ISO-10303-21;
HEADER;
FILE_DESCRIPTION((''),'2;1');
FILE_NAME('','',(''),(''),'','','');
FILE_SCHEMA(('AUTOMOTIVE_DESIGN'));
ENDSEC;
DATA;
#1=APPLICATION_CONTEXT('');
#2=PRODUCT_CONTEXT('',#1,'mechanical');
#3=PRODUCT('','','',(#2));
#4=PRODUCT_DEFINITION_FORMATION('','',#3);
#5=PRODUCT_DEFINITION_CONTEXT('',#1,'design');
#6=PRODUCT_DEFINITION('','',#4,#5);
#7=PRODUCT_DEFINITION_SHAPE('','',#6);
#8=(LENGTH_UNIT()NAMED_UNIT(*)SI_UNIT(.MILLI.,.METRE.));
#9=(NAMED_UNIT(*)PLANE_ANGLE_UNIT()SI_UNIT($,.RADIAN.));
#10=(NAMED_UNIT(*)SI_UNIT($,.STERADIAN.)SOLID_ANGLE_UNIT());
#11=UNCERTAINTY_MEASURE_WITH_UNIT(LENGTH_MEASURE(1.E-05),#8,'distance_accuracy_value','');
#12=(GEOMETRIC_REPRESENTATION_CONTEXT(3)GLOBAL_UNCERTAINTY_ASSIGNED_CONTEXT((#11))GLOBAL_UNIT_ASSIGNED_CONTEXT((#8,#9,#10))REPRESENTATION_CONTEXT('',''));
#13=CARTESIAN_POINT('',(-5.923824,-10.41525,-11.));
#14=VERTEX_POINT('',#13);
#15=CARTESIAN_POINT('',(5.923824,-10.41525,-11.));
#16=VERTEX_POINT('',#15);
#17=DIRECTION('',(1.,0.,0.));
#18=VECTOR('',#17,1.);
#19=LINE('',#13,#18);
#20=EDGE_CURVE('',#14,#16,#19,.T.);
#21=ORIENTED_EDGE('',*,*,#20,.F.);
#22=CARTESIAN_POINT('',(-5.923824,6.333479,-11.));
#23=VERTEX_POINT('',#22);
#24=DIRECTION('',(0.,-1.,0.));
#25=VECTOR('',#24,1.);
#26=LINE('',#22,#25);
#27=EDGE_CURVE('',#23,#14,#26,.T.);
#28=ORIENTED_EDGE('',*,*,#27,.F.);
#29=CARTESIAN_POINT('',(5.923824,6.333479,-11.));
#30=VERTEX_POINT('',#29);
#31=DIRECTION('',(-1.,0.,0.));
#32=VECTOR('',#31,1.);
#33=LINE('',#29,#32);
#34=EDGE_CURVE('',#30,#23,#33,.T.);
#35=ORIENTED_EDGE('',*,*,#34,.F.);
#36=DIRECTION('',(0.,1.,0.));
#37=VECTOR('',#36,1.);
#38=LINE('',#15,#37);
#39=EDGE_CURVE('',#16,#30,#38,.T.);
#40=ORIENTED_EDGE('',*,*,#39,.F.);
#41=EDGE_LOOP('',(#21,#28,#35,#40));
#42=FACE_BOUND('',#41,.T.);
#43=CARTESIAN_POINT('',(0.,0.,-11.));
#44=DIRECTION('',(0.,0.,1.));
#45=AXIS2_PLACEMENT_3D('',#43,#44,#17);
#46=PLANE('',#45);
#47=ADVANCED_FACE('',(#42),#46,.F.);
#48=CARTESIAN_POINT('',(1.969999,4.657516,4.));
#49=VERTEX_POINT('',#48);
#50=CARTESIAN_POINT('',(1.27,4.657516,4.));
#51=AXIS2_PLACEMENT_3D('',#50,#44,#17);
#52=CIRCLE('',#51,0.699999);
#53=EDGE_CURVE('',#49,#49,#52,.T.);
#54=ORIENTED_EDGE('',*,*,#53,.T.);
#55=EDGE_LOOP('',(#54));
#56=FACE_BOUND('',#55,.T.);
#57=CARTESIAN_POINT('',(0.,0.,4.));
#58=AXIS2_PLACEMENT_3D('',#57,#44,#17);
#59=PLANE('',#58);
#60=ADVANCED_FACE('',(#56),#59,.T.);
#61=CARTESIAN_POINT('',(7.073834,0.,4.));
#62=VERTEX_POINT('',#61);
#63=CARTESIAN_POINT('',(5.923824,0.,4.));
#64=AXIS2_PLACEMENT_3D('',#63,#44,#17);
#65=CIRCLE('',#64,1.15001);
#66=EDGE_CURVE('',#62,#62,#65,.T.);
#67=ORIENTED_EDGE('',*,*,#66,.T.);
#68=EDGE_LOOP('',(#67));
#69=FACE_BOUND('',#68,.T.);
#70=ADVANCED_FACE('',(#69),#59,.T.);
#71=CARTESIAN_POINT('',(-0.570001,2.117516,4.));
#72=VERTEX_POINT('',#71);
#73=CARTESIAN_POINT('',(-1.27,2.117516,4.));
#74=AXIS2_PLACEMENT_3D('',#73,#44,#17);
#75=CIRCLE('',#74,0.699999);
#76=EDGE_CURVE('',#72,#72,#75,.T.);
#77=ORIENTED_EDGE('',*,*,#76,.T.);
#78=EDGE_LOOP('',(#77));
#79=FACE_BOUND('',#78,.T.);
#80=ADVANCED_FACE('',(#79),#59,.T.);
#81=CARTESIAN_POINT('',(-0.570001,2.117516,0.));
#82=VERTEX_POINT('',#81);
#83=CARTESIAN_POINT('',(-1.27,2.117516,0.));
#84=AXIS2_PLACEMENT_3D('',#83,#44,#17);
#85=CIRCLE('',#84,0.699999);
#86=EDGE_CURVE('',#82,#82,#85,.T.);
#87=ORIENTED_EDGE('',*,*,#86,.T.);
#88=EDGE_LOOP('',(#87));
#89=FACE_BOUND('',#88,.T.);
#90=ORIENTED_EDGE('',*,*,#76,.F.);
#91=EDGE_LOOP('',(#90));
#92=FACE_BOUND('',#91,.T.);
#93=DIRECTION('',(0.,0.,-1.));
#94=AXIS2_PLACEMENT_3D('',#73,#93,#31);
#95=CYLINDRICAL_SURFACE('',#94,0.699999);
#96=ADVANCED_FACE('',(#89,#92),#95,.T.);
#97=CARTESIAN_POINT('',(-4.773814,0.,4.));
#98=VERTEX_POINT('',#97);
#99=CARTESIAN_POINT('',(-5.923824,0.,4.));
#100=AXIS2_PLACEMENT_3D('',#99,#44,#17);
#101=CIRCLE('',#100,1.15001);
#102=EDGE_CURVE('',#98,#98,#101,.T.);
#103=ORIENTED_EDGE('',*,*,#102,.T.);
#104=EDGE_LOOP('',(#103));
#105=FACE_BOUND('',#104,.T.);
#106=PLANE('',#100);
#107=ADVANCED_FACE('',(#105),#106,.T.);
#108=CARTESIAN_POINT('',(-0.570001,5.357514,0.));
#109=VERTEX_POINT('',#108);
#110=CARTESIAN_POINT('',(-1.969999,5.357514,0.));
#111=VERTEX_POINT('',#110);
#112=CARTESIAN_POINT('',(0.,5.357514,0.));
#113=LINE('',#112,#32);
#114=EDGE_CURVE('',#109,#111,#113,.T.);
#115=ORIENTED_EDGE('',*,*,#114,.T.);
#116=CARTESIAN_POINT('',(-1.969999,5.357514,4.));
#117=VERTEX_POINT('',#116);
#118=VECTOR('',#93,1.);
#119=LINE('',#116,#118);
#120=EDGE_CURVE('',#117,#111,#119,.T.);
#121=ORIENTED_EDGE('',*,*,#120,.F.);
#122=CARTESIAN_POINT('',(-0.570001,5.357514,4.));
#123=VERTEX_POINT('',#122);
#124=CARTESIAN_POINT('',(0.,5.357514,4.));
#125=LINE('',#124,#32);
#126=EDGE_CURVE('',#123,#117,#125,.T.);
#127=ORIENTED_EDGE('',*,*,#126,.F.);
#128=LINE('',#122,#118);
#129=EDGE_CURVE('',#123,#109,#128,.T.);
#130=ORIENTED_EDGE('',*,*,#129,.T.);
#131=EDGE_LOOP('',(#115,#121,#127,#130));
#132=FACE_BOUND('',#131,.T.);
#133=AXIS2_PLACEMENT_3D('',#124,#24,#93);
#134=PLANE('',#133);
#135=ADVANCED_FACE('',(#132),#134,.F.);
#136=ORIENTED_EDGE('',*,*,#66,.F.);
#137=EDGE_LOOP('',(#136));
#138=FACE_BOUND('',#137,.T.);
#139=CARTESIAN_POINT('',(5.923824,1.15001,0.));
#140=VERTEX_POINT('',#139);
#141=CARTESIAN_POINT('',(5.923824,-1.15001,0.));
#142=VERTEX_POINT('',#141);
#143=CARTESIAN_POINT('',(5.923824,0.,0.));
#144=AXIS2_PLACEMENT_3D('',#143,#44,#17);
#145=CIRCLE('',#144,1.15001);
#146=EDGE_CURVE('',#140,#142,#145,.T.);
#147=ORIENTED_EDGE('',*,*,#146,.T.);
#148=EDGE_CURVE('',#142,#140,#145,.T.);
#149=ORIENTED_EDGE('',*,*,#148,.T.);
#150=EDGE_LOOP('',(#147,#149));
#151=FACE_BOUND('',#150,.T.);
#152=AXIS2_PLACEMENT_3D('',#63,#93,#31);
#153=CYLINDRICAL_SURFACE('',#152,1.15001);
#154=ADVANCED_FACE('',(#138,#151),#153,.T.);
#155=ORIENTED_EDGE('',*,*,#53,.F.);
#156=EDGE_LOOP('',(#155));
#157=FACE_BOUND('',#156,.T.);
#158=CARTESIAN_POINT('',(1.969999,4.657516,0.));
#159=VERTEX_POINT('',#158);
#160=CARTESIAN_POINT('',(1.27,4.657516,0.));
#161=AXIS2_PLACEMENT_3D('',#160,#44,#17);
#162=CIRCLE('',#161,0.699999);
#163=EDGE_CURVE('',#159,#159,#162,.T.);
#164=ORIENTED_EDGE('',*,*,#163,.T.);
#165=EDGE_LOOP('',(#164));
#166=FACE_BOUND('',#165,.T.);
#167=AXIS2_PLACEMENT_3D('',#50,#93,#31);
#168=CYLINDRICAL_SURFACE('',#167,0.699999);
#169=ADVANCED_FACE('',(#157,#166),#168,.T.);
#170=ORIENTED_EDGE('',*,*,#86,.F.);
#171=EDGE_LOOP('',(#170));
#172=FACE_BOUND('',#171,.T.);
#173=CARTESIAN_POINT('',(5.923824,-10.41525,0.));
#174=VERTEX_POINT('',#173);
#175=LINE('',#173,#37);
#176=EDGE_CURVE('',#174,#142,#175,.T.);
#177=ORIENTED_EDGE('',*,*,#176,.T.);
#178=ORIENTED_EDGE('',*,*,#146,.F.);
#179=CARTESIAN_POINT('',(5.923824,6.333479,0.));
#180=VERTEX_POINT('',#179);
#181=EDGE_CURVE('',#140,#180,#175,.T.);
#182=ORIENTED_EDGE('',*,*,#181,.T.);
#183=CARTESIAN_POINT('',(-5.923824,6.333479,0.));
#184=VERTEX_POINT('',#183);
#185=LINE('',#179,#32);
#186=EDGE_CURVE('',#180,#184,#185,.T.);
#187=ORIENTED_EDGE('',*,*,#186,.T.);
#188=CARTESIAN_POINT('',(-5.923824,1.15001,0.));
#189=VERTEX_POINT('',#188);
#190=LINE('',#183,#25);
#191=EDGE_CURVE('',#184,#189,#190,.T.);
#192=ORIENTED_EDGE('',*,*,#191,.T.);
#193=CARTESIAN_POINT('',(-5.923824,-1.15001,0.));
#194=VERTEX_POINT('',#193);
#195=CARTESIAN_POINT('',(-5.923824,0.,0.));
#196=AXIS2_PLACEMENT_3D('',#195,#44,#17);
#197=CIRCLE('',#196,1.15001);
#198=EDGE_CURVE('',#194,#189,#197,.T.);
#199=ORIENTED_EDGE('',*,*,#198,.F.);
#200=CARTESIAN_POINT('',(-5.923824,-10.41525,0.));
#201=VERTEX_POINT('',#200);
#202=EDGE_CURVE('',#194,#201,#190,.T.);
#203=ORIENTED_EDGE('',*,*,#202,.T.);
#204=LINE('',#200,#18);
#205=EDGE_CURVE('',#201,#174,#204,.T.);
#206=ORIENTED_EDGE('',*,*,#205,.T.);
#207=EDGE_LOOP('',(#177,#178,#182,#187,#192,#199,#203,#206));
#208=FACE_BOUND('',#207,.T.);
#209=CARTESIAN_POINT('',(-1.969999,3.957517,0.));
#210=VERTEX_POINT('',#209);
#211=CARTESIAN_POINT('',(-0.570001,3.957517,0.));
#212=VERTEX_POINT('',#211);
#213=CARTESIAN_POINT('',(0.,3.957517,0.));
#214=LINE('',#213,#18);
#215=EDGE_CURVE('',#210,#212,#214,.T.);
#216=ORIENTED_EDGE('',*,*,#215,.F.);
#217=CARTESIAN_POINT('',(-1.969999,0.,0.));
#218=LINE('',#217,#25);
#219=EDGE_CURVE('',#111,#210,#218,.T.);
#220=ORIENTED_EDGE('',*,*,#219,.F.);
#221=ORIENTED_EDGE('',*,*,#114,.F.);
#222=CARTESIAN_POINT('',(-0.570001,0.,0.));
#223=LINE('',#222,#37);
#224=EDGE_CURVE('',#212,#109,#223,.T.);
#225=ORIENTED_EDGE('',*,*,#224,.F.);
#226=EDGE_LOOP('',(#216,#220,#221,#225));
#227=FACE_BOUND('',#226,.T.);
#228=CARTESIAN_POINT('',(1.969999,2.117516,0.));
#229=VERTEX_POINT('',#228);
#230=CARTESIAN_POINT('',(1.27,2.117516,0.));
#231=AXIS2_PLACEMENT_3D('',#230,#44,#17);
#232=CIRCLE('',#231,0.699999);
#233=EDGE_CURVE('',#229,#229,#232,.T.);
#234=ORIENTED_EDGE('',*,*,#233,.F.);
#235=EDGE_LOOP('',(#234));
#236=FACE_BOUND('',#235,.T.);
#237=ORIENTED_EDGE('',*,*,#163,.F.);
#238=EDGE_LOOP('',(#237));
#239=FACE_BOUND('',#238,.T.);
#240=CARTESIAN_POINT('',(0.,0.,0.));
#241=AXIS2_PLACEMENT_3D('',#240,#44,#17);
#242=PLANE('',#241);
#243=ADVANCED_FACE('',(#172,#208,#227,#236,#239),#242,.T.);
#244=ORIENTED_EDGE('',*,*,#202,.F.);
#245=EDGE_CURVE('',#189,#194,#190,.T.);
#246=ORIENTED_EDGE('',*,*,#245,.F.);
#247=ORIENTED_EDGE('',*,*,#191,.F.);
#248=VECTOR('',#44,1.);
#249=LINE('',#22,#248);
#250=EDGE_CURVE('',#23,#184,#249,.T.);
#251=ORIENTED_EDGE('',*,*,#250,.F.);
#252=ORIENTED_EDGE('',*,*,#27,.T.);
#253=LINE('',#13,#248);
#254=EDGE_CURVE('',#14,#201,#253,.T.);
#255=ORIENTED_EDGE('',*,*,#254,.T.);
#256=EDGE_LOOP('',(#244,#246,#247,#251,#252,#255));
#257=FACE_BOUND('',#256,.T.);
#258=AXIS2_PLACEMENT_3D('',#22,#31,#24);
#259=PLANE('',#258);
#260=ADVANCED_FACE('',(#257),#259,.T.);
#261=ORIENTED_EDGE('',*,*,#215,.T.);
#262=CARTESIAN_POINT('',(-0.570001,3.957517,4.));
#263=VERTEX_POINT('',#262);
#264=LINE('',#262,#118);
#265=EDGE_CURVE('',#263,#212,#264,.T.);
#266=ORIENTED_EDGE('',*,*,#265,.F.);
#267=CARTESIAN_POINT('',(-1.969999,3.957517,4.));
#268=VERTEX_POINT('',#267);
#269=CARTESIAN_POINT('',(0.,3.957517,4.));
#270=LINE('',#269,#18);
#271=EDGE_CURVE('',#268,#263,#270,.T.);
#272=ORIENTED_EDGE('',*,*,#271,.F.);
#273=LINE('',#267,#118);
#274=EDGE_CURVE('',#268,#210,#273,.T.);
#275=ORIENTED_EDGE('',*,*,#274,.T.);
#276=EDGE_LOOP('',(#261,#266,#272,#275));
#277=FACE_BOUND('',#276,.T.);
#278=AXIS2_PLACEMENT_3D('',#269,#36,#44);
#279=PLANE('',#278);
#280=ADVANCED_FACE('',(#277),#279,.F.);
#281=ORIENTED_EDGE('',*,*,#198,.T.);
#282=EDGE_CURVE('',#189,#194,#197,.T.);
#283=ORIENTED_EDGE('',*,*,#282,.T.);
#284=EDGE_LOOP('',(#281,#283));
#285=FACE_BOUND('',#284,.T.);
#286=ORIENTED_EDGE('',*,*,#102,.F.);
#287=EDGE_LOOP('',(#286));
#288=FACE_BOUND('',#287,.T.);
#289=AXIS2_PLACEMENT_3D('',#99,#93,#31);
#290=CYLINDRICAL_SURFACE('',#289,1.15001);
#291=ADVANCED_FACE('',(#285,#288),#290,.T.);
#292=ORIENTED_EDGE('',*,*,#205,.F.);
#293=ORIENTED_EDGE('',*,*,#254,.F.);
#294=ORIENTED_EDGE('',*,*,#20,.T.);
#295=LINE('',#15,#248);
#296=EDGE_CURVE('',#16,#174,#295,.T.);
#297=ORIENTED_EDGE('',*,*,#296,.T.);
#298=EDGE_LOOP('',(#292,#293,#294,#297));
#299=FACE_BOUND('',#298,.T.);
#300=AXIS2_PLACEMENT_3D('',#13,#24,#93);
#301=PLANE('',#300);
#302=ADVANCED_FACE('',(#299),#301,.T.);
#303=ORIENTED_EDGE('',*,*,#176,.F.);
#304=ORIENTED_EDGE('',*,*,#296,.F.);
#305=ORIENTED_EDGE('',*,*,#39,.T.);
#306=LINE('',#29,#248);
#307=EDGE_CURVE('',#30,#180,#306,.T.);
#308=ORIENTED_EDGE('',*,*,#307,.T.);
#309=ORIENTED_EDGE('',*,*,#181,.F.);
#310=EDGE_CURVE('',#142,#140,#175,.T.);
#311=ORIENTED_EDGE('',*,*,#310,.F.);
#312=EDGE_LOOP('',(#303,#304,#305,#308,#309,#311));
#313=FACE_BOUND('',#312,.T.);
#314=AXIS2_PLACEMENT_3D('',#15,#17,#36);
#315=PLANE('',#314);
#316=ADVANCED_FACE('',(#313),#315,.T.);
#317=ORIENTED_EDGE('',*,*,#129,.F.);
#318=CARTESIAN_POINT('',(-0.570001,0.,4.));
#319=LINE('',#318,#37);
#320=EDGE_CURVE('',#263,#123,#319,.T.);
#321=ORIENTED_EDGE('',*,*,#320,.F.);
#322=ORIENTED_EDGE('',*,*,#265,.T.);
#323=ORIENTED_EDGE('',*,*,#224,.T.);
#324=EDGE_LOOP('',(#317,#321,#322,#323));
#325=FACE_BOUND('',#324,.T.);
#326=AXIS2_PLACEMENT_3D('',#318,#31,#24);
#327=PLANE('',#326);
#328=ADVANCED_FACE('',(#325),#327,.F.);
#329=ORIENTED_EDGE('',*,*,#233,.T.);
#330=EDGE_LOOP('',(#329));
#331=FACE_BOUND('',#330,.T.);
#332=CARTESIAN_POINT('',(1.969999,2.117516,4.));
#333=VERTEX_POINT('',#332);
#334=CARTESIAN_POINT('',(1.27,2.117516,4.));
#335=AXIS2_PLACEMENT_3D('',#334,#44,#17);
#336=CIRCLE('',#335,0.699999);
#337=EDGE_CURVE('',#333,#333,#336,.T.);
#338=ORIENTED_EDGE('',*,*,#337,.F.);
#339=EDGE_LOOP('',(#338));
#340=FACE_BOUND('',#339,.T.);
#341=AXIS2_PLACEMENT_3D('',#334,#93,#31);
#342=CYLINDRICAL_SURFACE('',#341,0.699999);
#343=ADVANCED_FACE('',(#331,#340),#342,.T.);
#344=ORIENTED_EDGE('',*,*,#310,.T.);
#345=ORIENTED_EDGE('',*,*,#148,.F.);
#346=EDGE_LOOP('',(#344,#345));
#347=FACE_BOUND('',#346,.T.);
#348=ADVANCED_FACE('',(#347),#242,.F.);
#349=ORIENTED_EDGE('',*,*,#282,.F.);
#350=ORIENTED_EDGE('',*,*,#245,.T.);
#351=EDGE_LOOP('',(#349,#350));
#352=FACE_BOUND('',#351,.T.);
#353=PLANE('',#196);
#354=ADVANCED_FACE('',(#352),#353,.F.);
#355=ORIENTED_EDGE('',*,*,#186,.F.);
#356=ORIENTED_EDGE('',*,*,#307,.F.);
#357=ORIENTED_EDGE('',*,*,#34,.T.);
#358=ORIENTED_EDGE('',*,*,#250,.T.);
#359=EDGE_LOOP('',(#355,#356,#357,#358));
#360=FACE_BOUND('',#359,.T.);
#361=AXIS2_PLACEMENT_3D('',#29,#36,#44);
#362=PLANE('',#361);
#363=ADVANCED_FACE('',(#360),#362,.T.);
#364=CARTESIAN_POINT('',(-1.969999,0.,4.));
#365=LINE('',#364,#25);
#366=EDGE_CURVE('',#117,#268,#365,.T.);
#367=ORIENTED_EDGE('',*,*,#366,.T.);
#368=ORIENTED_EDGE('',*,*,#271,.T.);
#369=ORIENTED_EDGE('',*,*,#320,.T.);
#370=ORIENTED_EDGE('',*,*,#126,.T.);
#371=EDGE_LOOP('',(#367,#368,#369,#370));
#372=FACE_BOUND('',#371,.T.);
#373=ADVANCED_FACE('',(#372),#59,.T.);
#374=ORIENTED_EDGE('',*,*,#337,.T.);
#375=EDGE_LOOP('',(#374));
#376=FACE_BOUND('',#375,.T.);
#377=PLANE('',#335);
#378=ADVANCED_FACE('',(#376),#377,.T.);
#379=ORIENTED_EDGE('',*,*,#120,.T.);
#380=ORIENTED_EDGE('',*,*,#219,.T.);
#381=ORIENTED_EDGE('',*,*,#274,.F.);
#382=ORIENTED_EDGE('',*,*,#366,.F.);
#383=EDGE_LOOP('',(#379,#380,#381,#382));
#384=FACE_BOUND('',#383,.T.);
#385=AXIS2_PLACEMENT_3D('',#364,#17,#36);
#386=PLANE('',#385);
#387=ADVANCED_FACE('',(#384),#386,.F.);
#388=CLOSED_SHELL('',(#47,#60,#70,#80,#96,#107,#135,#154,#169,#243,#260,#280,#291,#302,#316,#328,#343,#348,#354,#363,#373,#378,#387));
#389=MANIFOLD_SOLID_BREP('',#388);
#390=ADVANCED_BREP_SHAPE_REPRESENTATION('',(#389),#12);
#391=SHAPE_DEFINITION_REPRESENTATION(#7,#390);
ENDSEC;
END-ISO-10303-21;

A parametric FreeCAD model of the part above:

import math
import FreeCAD as App
import Part
import Sketcher


def add_polygon(sketch, points):
    """Adds a closed chain of lines whose ends are joined by coincident constraints."""
    first, n = sketch.GeometryCount, len(points)
    for a, b in zip(points, points[1:] + points[:1]):
        sketch.addGeometry(Part.LineSegment(App.Vector(*a, 0), App.Vector(*b, 0)), False)
    for i in range(n):
        sketch.addConstraint(Sketcher.Constraint("Coincident", first + i, 2, first + (i + 1) % n, 1))

doc = App.newDocument("Part")
params = doc.addObject("Spreadsheet::Sheet", "Params")
for row, (alias, value) in enumerate([
    ("pad1_length", "11 mm"),
    ("pad2_length", "4 mm"),
], start=1):
    params.set(f"A{row}", alias)
    params.set(f"B{row}", "=" + value)
    params.setAlias(f"B{row}", alias)

body = doc.addObject("PartDesign::Body", "Body")

sketch1 = body.newObject("Sketcher::SketchObject", "Sketch")
sketch1.AttachmentSupport = (doc.getObject("XY_Plane"), [""])
sketch1.MapMode = "FlatFace"
add_polygon(sketch1, [(-6, 6), (-6, -10), (6, -10), (6, 6)])
sketch1.addConstraint([
    Sketcher.Constraint("Vertical", 0),
    Sketcher.Constraint("Horizontal", 1),
    Sketcher.Constraint("Vertical", 2),
    Sketcher.Constraint("Horizontal", 3),
    Sketcher.Constraint("DistanceY", 0, 2, 0, 1, 16.748729),
    Sketcher.Constraint("DistanceX", 1, 1, 1, 2, 11.847648),
    Sketcher.Constraint("DistanceY", 0, 2, -1, 1, 10.41525),
    Sketcher.Constraint("DistanceX", 0, 2, -1, 1, 5.923824),
])
pad1 = body.newObject("PartDesign::Pad", "Pad")
pad1.Profile = sketch1
pad1.setExpression("Length", "Params.pad1_length")
pad1.Reversed = True

sketch2 = body.newObject("Sketcher::SketchObject", "Sketch001")
sketch2.AttachmentSupport = (doc.getObject("XY_Plane"), [""])
sketch2.MapMode = "FlatFace"
sketch2.addGeometry(Part.ArcOfCircle(Part.Circle(App.Vector(5.9, 0, 0), App.Vector(0, 0, 1), 1.2), math.radians(90), math.radians(270)), False)
sketch2.addGeometry(Part.ArcOfCircle(Part.Circle(App.Vector(5.9, 0, 0), App.Vector(0, 0, 1), 1.2), math.radians(-90), math.radians(0)), False)
sketch2.addGeometry(Part.ArcOfCircle(Part.Circle(App.Vector(5.9, 0, 0), App.Vector(0, 0, 1), 1.2), math.radians(0), math.radians(90)), False)
sketch2.addGeometry(Part.Circle(App.Vector(-1.3, 2.1, 0), App.Vector(0, 0, 1), 0.7), False)
sketch2.addGeometry(Part.Circle(App.Vector(1.3, 4.7, 0), App.Vector(0, 0, 1), 0.7), False)
add_polygon(sketch2, [(-2, 5.4), (-2, 4), (-0.6, 4), (-0.6, 5.4)])
sketch2.addGeometry(Part.Circle(App.Vector(-5.9, 0, 0), App.Vector(0, 0, 1), 1.2), False)
sketch2.addGeometry(Part.Circle(App.Vector(1.3, 2.1, 0), App.Vector(0, 0, 1), 0.7), False)
sketch2.addConstraint([
    Sketcher.Constraint("Tangent", 0, 2, 1, 1),
    Sketcher.Constraint("Tangent", 1, 2, 2, 1),
    Sketcher.Constraint("Tangent", 2, 2, 0, 1),
    Sketcher.Constraint("Vertical", 5),
    Sketcher.Constraint("Horizontal", 6),
    Sketcher.Constraint("Vertical", 7),
    Sketcher.Constraint("Horizontal", 8),
    Sketcher.Constraint("Equal", 3, 4),
    Sketcher.Constraint("Equal", 2, 9),
    Sketcher.Constraint("Equal", 4, 10),
    Sketcher.Constraint("Symmetric", 0, 3, 9, 3, -1, 1),
    Sketcher.Constraint("Symmetric", 3, 3, 10, 3, -2),
    Sketcher.Constraint("Symmetric", 0, 2, 2, 2, -1),
    Sketcher.Constraint("PointOnObject", 1, 2, -1),
    Sketcher.Constraint("Vertical", 4, 3, 10, 3),
    Sketcher.Constraint("Vertical", 2, 3, 0, 2),
    Sketcher.Constraint("Equal", 8, 5),
    Sketcher.Constraint("DistanceX", 5, 2, 3, 3, 0.699999),
    Sketcher.Constraint("DistanceY", 5, 2, 4, 3, 0.699999),
    Sketcher.Constraint("DistanceX", 3, 3, 6, 2, 0.699999),
    Sketcher.Constraint("Diameter", 9, 2.300021),
    Sketcher.Constraint("DistanceX", 3, 3, -1, 1, 1.27),
    Sketcher.Constraint("DistanceY", 3, 3, 4, 3, 2.54),
    Sketcher.Constraint("Diameter", 3, 1.399997),
    Sketcher.Constraint("DistanceX", -1, 1, 0, 3, 5.923824),
    Sketcher.Constraint("DistanceY", -1, 1, 3, 3, 2.117516),
])
pad2 = body.newObject("PartDesign::Pad", "Pad001")
pad2.Profile = sketch2
pad2.setExpression("Length", "Params.pad2_length")

doc.recompute()
